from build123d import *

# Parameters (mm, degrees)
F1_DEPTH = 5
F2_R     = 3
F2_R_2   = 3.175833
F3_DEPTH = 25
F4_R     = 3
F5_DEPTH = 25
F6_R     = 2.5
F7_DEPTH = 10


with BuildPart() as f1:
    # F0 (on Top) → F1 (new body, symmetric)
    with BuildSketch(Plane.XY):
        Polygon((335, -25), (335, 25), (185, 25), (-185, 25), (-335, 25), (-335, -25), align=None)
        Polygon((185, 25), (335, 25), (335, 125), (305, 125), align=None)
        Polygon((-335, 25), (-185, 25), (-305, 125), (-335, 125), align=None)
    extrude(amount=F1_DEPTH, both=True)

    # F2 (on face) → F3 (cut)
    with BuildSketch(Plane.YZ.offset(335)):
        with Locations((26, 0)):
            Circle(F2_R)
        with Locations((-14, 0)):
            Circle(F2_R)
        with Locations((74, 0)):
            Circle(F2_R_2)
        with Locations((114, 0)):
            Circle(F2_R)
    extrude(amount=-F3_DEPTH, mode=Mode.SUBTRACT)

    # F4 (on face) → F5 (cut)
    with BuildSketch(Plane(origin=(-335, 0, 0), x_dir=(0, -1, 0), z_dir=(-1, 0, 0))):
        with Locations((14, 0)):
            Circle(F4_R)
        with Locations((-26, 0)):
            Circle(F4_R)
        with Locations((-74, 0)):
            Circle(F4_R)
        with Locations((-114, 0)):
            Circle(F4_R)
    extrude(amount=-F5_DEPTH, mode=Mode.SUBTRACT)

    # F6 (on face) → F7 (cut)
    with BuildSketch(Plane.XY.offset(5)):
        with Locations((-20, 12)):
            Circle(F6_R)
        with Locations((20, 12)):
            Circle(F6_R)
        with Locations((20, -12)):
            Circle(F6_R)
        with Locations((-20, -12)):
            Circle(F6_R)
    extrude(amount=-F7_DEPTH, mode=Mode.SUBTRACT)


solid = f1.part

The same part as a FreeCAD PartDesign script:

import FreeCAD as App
import Part
import Sketcher

V = App.Vector
Q = App.Units.Quantity

doc = App.newDocument("Part")
body = doc.addObject("PartDesign::Body", "Body")

# Sketch on XY plane
sketch1 = doc.addObject("Sketcher::SketchObject", "Sketch")
body.addObject(sketch1)
sketch1.AttachmentSupport = (doc.XY_Plane, [""])
sketch1.MapMode = "FlatFace"
sketch1.addGeometry([
    Part.LineSegment(V(335, -25, 0), V(335, 125, 0)),  # 0
    Part.LineSegment(V(335, 125, 0), V(305, 125, 0)),  # 1
    Part.LineSegment(V(305, 125, 0), V(185, 25, 0)),  # 2
    Part.LineSegment(V(185, 25, 0), V(-185, 25, 0)),  # 3
    Part.LineSegment(V(-185, 25, 0), V(-305, 125, 0)),  # 4
    Part.LineSegment(V(-305, 125, 0), V(-335, 125, 0)),  # 5
    Part.LineSegment(V(-335, 125, 0), V(-335, -25, 0)),  # 6
    Part.LineSegment(V(-335, -25, 0), V(335, -25, 0)),  # 7
], False)
sketch1.addConstraint([
    Sketcher.Constraint("Coincident", 0, 2, 1, 1),
    Sketcher.Constraint("Coincident", 1, 2, 2, 1),
    Sketcher.Constraint("Coincident", 2, 2, 3, 1),
    Sketcher.Constraint("Coincident", 3, 2, 4, 1),
    Sketcher.Constraint("Coincident", 4, 2, 5, 1),
    Sketcher.Constraint("Coincident", 5, 2, 6, 1),
    Sketcher.Constraint("Coincident", 6, 2, 7, 1),
    Sketcher.Constraint("Coincident", 7, 2, 0, 1),
    Sketcher.Constraint("Vertical", 0),
    Sketcher.Constraint("Horizontal", 1),
    Sketcher.Constraint("Horizontal", 3),
    Sketcher.Constraint("Horizontal", 5),
    Sketcher.Constraint("Vertical", 6),
    Sketcher.Constraint("Horizontal", 7),
    Sketcher.Constraint("Symmetric", 1, 2, 4, 2, -2),
    Sketcher.Constraint("Equal", 1, 5),
    Sketcher.Constraint("Equal", 2, 4),
    Sketcher.Constraint("DistanceX", 1, 2, 1, 1, Q("30 mm")),
    Sketcher.Constraint("DistanceX", 3, 2, 3, 1, Q("370 mm")),
    Sketcher.Constraint("DistanceX", 7, 1, 7, 2, Q("670 mm")),
    Sketcher.Constraint("DistanceY", 0, 1, 0, 2, Q("150 mm")),
    Sketcher.Constraint("DistanceY", -1, 1, 0, 2, Q("125 mm")),
    Sketcher.Constraint("DistanceY", -1, 1, 2, 2, Q("25 mm")),
])
pad1 = doc.addObject("PartDesign::Pad", "Pad")
body.addObject(pad1)
pad1.Profile = sketch1
pad1.Length = 10
pad1.Midplane = True

# Sketch on YZ plane
sketch2 = doc.addObject("Sketcher::SketchObject", "Sketch001")
body.addObject(sketch2)
sketch2.AttachmentSupport = (doc.YZ_Plane, [""])
sketch2.MapMode = "FlatFace"
sketch2.AttachmentOffset = App.Placement(V(0, 0, 335), App.Rotation())
sketch2.addGeometry([
    Part.Circle(V(26, 0, 0), V(0, 0, 1), 3),
    Part.Circle(V(-14, 0, 0), V(0, 0, 1), 3),
    Part.Circle(V(74, 0, 0), V(0, 0, 1), 3.175833),
    Part.Circle(V(114, 0, 0), V(0, 0, 1), 3),
], False)
sketch2.addConstraint([
    Sketcher.Constraint("Equal", 0, 1),
    Sketcher.Constraint("Equal", 1, 3),
    Sketcher.Constraint("PointOnObject", 0, 3, -1),
    Sketcher.Constraint("PointOnObject", 1, 3, -1),
    Sketcher.Constraint("PointOnObject", 2, 3, -1),
    Sketcher.Constraint("PointOnObject", 3, 3, -1),
    Sketcher.Constraint("Diameter", 0, Q("6 mm")),
    Sketcher.Constraint("DistanceX", -1, 1, 0, 3, Q("26 mm")),
    Sketcher.Constraint("DistanceX", 1, 3, -1, 1, Q("14 mm")),
    Sketcher.Constraint("DistanceX", -1, 1, 2, 3, Q("74 mm")),
    Sketcher.Constraint("DistanceX", -1, 1, 3, 3, Q("114 mm")),
    Sketcher.Constraint("Diameter", 2, Q("6.351666 mm")),
])
pocket1 = doc.addObject("PartDesign::Pocket", "Pocket")
body.addObject(pocket1)
pocket1.Profile = sketch2
pocket1.Length = 25

# Sketch on YZ plane
sketch3 = doc.addObject("Sketcher::SketchObject", "Sketch002")
body.addObject(sketch3)
sketch3.AttachmentSupport = (doc.YZ_Plane, [""])
sketch3.MapMode = "FlatFace"
sketch3.AttachmentOffset = App.Placement(V(0, 0, -335), App.Rotation())
sketch3.addGeometry([
    Part.Circle(V(-14, 0, 0), V(0, 0, 1), 3),
    Part.Circle(V(26, 0, 0), V(0, 0, 1), 3),
    Part.Circle(V(74, 0, 0), V(0, 0, 1), 3),
    Part.Circle(V(114, 0, 0), V(0, 0, 1), 3),
], False)
sketch3.addConstraint([
    Sketcher.Constraint("Equal", 0, 1),
    Sketcher.Constraint("Equal", 1, 2),
    Sketcher.Constraint("Equal", 2, 3),
    Sketcher.Constraint("PointOnObject", 0, 3, -1),
    Sketcher.Constraint("PointOnObject", 1, 3, -1),
    Sketcher.Constraint("PointOnObject", 2, 3, -1),
    Sketcher.Constraint("PointOnObject", 3, 3, -1),
    Sketcher.Constraint("Diameter", 0, Q("6 mm")),
    Sketcher.Constraint("DistanceX", 0, 3, -1, 1, Q("14 mm")),
    Sketcher.Constraint("DistanceX", -1, 1, 1, 3, Q("26 mm")),
    Sketcher.Constraint("DistanceX", -1, 1, 2, 3, Q("74 mm")),
    Sketcher.Constraint("DistanceX", -1, 1, 3, 3, Q("114 mm")),
])
pocket2 = doc.addObject("PartDesign::Pocket", "Pocket001")
body.addObject(pocket2)
pocket2.Profile = sketch3
pocket2.Length = 25
pocket2.Reversed = True

# Sketch on XY plane
sketch4 = doc.addObject("Sketcher::SketchObject", "Sketch003")
body.addObject(sketch4)
sketch4.AttachmentSupport = (doc.XY_Plane, [""])
sketch4.MapMode = "FlatFace"
sketch4.AttachmentOffset = App.Placement(V(0, 0, 5), App.Rotation())
sketch4.addGeometry([
    Part.Circle(V(-20, 12, 0), V(0, 0, 1), 2.5),
    Part.Circle(V(20, 12, 0), V(0, 0, 1), 2.5),
    Part.Circle(V(20, -12, 0), V(0, 0, 1), 2.5),
    Part.Circle(V(-20, -12, 0), V(0, 0, 1), 2.5),
], False)
sketch4.addConstraint([
    Sketcher.Constraint("Equal", 0, 1),
    Sketcher.Constraint("Equal", 1, 2),
    Sketcher.Constraint("Equal", 2, 3),
    Sketcher.Constraint("Symmetric", 0, 3, 2, 3, -1, 1),
    Sketcher.Constraint("Symmetric", 1, 3, 3, 3, -1, 1),
    Sketcher.Constraint("Symmetric", 0, 3, 1, 3, -2),
    Sketcher.Constraint("Diameter", 0, Q("5 mm")),
    Sketcher.Constraint("DistanceX", 0, 3, -1, 1, Q("20 mm")),
    Sketcher.Constraint("DistanceY", -1, 1, 0, 3, Q("12 mm")),
])
pocket3 = doc.addObject("PartDesign::Pocket", "Pocket002")
body.addObject(pocket3)
pocket3.Profile = sketch4
pocket3.Length = 10

doc.recompute()
